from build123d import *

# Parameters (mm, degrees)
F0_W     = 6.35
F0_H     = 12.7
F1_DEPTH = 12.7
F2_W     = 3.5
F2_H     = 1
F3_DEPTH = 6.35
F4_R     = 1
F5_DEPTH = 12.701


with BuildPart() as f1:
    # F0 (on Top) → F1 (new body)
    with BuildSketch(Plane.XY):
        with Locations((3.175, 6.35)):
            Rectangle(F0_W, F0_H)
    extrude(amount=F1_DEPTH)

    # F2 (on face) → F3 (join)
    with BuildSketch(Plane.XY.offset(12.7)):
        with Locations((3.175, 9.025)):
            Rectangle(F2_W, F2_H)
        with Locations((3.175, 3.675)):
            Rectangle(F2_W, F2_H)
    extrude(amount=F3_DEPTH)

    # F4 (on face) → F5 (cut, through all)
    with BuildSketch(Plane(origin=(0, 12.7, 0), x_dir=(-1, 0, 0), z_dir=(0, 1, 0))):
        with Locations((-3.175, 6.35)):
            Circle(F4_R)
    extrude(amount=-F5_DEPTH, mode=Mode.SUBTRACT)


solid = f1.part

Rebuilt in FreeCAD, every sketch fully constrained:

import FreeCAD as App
import Part
import Sketcher
from FreeCAD import Vector
Q = App.Units.Quantity


def add_polygon(sketch, points):
    """Adds a closed chain of lines whose ends are joined by coincident constraints."""
    first, n = sketch.GeometryCount, len(points)
    for a, b in zip(points, points[1:] + points[:1]):
        sketch.addGeometry(Part.LineSegment(App.Vector(*a, 0), App.Vector(*b, 0)), False)
    for i in range(n):
        sketch.addConstraint(Sketcher.Constraint("Coincident", first + i, 2, first + (i + 1) % n, 1))

doc = App.newDocument("Part")
params = doc.addObject("Spreadsheet::Sheet", "Params")
for row, (alias, value) in enumerate([
    ("sketch1_height", "12.7 mm"),
    ("sketch1_width", "6.35 mm"),
    ("pad1_length", "12.7 mm"),
    ("sketch2_height", "1 mm"),
    ("sketch2_width", "3.5 mm"),
    ("pad2_length", "6.35 mm"),
    ("sketch3_diameter", "2 mm"),
], start=1):
    params.set(f"A{row}", alias)
    params.set(f"B{row}", "=" + value)
    params.setAlias(f"B{row}", alias)

body = doc.addObject("PartDesign::Body", "Body")

# Sketch on XY plane
sketch1 = doc.addObject("Sketcher::SketchObject", "Sketch")
body.addObject(sketch1)
sketch1.AttachmentSupport = (doc.XY_Plane, [""])
sketch1.MapMode = "FlatFace"
add_polygon(sketch1, [(0, 12.7), (0, 0), (6.35, 0), (6.35, 12.7)])  # lines 0-3
sketch1.addConstraint(Sketcher.Constraint("Vertical", 0))
sketch1.addConstraint(Sketcher.Constraint("Horizontal", 1))
sketch1.addConstraint(Sketcher.Constraint("Vertical", 2))
sketch1.addConstraint(Sketcher.Constraint("Horizontal", 3))
sketch1.addConstraint(Sketcher.Constraint("Coincident", 0, 2, -1, 1))
sketch1.addConstraint(Sketcher.Constraint("DistanceY", 0, 2, 0, 1, Q("12.7 mm")))
sketch1.addConstraint(Sketcher.Constraint("DistanceX", 1, 1, 1, 2, Q("6.35 mm")))
sketch1.setExpression("Constraints[9]", "Params.sketch1_height")
sketch1.setExpression("Constraints[10]", "Params.sketch1_width")
pad1 = doc.addObject("PartDesign::Pad", "Pad")
body.addObject(pad1)
pad1.Profile = sketch1
pad1.setExpression("Length", "Params.pad1_length")

# Sketch on XY plane
sketch2 = doc.addObject("Sketcher::SketchObject", "Sketch001")
body.addObject(sketch2)
sketch2.AttachmentSupport = (doc.XY_Plane, [""])
sketch2.MapMode = "FlatFace"
sketch2.AttachmentOffset = App.Placement(Vector(0, 0, 12.7), App.Rotation())
add_polygon(sketch2, [(1.425, 9.525), (1.425, 8.525), (4.925, 8.525), (4.925, 9.525)])  # lines 0-3
add_polygon(sketch2, [(1.425, 4.175), (1.425, 3.175), (4.925, 3.175), (4.925, 4.175)])  # lines 4-7
sketch2.addConstraint(Sketcher.Constraint("Vertical", 0))
sketch2.addConstraint(Sketcher.Constraint("Horizontal", 1))
sketch2.addConstraint(Sketcher.Constraint("Vertical", 2))
sketch2.addConstraint(Sketcher.Constraint("Horizontal", 3))
sketch2.addConstraint(Sketcher.Constraint("Vertical", 4))
sketch2.addConstraint(Sketcher.Constraint("Horizontal", 5))
sketch2.addConstraint(Sketcher.Constraint("Vertical", 6))
sketch2.addConstraint(Sketcher.Constraint("Horizontal", 7))
sketch2.addConstraint(Sketcher.Constraint("Vertical", 3, 2, 4, 2))
sketch2.addConstraint(Sketcher.Constraint("Vertical", 2, 2, 5, 2))
sketch2.addConstraint(Sketcher.Constraint("Equal", 2, 4))
sketch2.addConstraint(Sketcher.Constraint("DistanceY", 0, 2, 0, 1, Q("1 mm")))
sketch2.addConstraint(Sketcher.Constraint("DistanceX", 1, 1, 1, 2, Q("3.5 mm")))
sketch2.addConstraint(Sketcher.Constraint("DistanceY", 4, 2, 0, 2, Q("5.35 mm")))
sketch2.addConstraint(Sketcher.Constraint("DistanceX", -1, 1, 0, 2, Q("1.425 mm")))
sketch2.addConstraint(Sketcher.Constraint("DistanceY", -1, 1, 0, 2, Q("8.525 mm")))
sketch2.setExpression("Constraints[19]", "Params.sketch2_height")
sketch2.setExpression("Constraints[20]", "Params.sketch2_width")
pad2 = doc.addObject("PartDesign::Pad", "Pad001")
body.addObject(pad2)
pad2.Profile = sketch2
pad2.setExpression("Length", "Params.pad2_length")

# Sketch on XZ plane
sketch3 = doc.addObject("Sketcher::SketchObject", "Sketch002")
body.addObject(sketch3)
sketch3.AttachmentSupport = (doc.XZ_Plane, [""])
sketch3.MapMode = "FlatFace"
sketch3.AttachmentOffset = App.Placement(Vector(0, 0, -12.7), App.Rotation())
sketch3.addGeometry(Part.Circle(Vector(3.175, 6.35, 0), Vector(0, 0, 1), 1), False)
sketch3.addConstraint(Sketcher.Constraint("Diameter", 0, Q("2 mm")))
sketch3.addConstraint(Sketcher.Constraint("DistanceY", -1, 1, 0, 3, Q("6.35 mm")))
sketch3.addConstraint(Sketcher.Constraint("DistanceX", -1, 1, 0, 3, Q("3.175 mm")))
sketch3.setExpression("Constraints[0]", "Params.sketch3_diameter")
pocket1 = doc.addObject("PartDesign::Pocket", "Pocket")
body.addObject(pocket1)
pocket1.Profile = sketch3
pocket1.Type = "ThroughAll"
pocket1.Reversed = True

doc.recompute()
